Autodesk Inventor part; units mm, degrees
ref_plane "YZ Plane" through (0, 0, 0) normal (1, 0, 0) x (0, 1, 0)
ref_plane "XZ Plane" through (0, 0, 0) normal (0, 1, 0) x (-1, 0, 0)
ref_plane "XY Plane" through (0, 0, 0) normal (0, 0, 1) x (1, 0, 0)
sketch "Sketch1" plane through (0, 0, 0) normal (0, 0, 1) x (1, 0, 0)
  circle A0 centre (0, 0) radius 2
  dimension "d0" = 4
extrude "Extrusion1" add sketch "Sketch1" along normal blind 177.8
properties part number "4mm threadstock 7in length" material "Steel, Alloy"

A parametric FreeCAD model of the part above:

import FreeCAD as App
import Part
import Sketcher
from FreeCAD import Vector

doc = App.newDocument("Part")
params = doc.addObject("Spreadsheet::Sheet", "Params")
for row, (alias, value) in enumerate([
    ("sketch1_diameter", "4 mm"),
    ("pad1_length", "177.8 mm"),
], start=1):
    params.set(f"A{row}", alias)
    params.set(f"B{row}", "=" + value)
    params.setAlias(f"B{row}", alias)

body = doc.addObject("PartDesign::Body", "Body")

sketch1 = body.newObject("Sketcher::SketchObject", "Sketch")
sketch1.AttachmentSupport = (doc.getObject("XY_Plane"), [""])
sketch1.MapMode = "FlatFace"
sketch1.addGeometry(Part.Circle(Vector(0, 0, 0), Vector(0, 0, 1), 2), False)
sketch1.addConstraint([
    Sketcher.Constraint("Coincident", 0, 3, -1, 1),
    Sketcher.Constraint("Diameter", 0, 4.0),
])
sketch1.setExpression("Constraints[1]", "Params.sketch1_diameter")
pad1 = body.newObject("PartDesign::Pad", "Pad")
pad1.Profile = sketch1
pad1.setExpression("Length", "Params.pad1_length")

doc.recompute()
